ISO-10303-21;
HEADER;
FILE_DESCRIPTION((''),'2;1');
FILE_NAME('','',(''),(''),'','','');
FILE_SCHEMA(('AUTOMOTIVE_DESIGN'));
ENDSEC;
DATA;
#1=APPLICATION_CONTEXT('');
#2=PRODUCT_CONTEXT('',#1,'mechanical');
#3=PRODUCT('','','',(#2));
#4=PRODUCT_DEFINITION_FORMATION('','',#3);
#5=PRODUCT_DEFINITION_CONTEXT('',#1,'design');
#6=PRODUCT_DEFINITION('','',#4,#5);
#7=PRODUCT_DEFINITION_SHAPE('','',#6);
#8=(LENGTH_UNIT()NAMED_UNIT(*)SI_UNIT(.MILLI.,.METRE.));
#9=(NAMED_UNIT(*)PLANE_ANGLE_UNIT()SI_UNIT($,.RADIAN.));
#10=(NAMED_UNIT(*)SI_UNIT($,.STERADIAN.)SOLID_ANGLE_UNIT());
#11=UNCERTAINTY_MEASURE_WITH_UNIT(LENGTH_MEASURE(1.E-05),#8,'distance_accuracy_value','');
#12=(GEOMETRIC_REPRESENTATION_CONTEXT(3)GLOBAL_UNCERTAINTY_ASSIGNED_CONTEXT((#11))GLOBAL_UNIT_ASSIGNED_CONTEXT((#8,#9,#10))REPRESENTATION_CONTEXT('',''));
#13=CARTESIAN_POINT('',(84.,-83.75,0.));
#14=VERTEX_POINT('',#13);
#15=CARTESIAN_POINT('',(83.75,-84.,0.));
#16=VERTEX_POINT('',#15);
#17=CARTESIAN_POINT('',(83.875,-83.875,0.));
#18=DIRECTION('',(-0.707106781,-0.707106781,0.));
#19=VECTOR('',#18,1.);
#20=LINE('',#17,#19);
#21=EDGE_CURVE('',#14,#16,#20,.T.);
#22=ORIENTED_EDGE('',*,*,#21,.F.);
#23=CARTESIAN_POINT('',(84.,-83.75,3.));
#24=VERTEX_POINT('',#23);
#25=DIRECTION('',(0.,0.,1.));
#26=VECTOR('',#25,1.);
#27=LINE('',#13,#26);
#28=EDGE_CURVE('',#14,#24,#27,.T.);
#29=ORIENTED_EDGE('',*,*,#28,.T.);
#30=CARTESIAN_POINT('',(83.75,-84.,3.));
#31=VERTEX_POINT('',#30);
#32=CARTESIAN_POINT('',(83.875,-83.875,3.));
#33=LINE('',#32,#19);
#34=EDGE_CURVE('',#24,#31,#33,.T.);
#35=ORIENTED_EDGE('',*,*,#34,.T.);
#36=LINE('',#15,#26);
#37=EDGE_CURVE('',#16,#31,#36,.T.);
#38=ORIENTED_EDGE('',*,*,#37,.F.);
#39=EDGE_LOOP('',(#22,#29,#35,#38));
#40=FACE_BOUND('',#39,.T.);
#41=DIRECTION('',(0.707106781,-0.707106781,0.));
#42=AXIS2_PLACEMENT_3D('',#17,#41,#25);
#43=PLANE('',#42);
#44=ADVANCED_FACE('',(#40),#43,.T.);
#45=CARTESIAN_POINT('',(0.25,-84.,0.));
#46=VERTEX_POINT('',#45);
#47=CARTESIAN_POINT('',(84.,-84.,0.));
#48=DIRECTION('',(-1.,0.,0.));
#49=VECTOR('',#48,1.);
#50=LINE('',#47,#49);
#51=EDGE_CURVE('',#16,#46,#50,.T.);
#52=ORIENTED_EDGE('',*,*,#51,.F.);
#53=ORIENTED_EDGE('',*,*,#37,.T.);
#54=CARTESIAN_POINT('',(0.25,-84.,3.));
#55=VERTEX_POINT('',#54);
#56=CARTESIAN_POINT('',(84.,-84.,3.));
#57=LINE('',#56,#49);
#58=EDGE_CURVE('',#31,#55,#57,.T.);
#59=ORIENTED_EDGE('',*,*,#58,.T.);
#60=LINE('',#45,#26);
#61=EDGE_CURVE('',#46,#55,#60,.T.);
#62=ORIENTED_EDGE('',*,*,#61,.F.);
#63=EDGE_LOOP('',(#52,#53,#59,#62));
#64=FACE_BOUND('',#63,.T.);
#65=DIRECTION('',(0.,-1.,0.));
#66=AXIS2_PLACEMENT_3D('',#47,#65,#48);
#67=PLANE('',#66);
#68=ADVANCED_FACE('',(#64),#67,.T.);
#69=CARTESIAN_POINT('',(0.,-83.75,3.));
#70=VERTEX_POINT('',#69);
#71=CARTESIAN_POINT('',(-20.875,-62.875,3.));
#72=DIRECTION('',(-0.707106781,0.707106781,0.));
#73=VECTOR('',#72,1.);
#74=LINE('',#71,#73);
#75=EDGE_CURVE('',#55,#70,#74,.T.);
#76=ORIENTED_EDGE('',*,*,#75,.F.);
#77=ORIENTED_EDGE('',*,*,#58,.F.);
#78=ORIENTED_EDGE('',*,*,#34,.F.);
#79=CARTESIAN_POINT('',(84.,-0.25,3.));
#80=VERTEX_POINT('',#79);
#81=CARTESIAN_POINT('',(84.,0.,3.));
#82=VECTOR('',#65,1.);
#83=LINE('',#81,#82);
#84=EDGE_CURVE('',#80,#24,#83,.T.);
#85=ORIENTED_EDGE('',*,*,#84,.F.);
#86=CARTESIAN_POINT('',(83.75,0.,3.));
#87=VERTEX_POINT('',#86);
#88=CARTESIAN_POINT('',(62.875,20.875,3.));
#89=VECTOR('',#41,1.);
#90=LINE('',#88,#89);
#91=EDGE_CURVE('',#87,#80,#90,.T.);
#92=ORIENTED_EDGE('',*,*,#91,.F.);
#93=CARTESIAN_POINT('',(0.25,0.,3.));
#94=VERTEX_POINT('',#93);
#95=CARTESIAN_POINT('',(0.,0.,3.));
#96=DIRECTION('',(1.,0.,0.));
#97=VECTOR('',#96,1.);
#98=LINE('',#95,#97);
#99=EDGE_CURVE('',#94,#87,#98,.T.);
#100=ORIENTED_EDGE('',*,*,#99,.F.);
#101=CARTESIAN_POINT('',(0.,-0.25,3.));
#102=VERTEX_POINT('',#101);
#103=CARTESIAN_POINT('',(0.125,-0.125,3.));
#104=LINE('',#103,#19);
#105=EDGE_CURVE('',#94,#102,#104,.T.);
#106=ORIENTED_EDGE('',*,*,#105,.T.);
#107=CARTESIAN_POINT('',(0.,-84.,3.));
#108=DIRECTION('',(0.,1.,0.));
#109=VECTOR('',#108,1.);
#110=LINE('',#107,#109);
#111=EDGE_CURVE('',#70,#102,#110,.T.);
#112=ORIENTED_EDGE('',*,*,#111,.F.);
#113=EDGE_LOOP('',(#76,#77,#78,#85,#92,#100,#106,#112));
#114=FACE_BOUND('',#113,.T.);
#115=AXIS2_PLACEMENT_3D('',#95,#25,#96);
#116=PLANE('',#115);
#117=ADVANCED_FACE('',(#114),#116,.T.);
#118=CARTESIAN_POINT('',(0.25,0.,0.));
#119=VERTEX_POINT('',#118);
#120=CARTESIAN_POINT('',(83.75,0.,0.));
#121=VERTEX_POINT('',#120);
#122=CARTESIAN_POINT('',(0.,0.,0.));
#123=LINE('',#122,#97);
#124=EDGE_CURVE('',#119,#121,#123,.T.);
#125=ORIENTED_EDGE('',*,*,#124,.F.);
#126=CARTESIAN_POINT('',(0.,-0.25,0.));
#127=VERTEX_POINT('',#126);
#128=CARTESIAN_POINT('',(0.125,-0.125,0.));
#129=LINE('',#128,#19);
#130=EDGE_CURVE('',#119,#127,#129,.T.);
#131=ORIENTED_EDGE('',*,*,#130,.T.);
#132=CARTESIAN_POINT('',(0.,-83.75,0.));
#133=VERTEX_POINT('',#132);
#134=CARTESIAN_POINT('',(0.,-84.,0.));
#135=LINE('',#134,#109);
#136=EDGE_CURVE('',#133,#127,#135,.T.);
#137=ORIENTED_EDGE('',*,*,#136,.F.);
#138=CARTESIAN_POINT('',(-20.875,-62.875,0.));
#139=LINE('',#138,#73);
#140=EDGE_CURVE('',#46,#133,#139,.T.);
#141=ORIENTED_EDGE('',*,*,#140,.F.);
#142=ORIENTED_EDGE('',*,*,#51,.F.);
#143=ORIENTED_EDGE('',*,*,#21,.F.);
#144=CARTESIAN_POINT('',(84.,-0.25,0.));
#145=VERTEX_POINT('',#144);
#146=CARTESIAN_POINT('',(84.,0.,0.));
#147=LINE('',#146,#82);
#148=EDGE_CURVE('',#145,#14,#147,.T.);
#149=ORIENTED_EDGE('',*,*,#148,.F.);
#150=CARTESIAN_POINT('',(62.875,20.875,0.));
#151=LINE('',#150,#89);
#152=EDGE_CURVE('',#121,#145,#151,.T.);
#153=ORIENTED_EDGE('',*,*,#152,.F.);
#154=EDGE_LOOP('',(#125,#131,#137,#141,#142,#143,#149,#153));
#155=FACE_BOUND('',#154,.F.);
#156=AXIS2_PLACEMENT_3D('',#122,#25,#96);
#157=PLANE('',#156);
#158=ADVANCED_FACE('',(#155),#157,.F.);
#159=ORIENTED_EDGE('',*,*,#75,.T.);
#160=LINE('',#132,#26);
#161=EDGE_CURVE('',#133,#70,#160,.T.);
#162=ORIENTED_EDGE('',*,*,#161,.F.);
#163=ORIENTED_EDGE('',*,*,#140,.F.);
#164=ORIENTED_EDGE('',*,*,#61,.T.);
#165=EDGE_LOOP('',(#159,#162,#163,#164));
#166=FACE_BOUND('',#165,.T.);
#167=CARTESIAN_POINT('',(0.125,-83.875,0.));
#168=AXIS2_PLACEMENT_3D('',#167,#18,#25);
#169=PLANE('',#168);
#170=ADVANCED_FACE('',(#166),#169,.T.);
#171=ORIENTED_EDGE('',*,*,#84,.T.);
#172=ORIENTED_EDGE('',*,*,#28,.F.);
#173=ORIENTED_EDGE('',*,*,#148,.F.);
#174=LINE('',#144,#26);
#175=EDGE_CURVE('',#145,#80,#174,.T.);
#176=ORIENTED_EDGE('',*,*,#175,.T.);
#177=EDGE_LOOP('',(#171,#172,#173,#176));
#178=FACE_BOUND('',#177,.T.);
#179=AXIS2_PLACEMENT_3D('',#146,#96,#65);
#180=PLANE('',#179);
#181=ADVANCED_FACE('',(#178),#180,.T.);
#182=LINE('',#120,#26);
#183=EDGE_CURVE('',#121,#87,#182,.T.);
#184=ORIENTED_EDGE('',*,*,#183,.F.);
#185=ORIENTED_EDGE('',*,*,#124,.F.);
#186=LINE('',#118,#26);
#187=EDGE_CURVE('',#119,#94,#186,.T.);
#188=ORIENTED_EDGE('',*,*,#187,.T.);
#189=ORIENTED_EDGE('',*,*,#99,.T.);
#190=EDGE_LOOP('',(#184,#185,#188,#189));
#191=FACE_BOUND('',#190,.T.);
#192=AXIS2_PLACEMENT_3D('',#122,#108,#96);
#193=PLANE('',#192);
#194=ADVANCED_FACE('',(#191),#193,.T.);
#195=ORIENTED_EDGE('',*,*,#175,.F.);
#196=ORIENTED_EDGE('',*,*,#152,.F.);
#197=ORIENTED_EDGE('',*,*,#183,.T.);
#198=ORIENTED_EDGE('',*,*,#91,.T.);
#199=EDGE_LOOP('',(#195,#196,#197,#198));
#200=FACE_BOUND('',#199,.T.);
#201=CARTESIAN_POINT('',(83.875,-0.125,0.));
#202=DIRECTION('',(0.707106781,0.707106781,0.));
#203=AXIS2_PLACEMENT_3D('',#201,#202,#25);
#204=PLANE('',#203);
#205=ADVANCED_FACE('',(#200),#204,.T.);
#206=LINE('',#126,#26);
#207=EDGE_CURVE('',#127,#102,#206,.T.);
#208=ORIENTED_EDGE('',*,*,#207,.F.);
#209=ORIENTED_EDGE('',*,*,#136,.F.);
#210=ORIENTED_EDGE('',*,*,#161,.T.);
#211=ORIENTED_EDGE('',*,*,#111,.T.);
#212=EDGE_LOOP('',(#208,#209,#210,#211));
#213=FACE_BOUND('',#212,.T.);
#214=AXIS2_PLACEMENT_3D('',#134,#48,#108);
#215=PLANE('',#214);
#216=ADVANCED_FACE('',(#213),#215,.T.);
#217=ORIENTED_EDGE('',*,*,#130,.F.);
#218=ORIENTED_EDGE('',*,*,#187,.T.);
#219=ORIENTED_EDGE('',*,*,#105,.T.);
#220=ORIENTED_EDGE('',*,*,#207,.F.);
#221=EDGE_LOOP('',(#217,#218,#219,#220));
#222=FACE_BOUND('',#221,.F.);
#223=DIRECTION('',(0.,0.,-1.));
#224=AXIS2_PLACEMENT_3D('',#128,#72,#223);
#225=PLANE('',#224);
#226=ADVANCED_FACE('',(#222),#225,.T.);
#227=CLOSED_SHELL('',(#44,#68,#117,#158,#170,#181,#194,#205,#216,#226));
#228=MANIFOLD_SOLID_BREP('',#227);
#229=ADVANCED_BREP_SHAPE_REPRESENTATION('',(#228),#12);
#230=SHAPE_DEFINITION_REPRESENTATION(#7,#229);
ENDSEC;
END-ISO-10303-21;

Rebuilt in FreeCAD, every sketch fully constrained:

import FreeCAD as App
import Part
import Sketcher

V = App.Vector


def edges_at(feature, points):
    """Names of the edges that pass closest to the given points."""
    edges = feature.Shape.Edges
    near = lambda p: min(range(len(edges)), key=lambda i: edges[i].distToShape(Part.Vertex(*p))[0])
    return sorted({f"Edge{near(p) + 1}" for p in points})

doc = App.newDocument("Part")
body = doc.addObject("PartDesign::Body", "Body")

# Sketch on XY plane
sketch1 = body.newObject("Sketcher::SketchObject", "Sketch")
sketch1.AttachmentSupport = (doc.getObject("XY_Plane"), [""])
sketch1.MapMode = "FlatFace"
sketch1.addGeometry([
    Part.LineSegment(V(84, 0, 0), V(0, 0, 0)),
    Part.LineSegment(V(0, 0, 0), V(0, -84, 0)),
    Part.LineSegment(V(0, -84, 0), V(84, -84, 0)),
    Part.LineSegment(V(84, -84, 0), V(84, 0, 0)),
], False)
sketch1.addConstraint([
    Sketcher.Constraint("Coincident", 0, 2, 1, 1),
    Sketcher.Constraint("Coincident", 1, 2, 2, 1),
    Sketcher.Constraint("Coincident", 2, 2, 3, 1),
    Sketcher.Constraint("Coincident", 3, 2, 0, 1),
    Sketcher.Constraint("Horizontal", 0),
    Sketcher.Constraint("Vertical", 1),
    Sketcher.Constraint("Horizontal", 2),
    Sketcher.Constraint("Vertical", 3),
    Sketcher.Constraint("Coincident", 0, 2, -1, 1),
    Sketcher.Constraint("Equal", 2, 1),
    Sketcher.Constraint("DistanceX", 0, 2, 0, 1, 84.0),
])
pad1 = body.newObject("PartDesign::Pad", "Pad")
pad1.Profile = sketch1
pad1.Length = 3
doc.recompute()

chamfer = body.newObject("PartDesign::Chamfer", "Chamfer")
chamfer.Base = (pad1, edges_at(pad1, [
    (0, 0, 1.5),
    (84, 0, 1.5),
    (84, -84, 1.5),
    (0, -84, 1.5),
]))
chamfer.Size = 0.25

doc.recompute()
